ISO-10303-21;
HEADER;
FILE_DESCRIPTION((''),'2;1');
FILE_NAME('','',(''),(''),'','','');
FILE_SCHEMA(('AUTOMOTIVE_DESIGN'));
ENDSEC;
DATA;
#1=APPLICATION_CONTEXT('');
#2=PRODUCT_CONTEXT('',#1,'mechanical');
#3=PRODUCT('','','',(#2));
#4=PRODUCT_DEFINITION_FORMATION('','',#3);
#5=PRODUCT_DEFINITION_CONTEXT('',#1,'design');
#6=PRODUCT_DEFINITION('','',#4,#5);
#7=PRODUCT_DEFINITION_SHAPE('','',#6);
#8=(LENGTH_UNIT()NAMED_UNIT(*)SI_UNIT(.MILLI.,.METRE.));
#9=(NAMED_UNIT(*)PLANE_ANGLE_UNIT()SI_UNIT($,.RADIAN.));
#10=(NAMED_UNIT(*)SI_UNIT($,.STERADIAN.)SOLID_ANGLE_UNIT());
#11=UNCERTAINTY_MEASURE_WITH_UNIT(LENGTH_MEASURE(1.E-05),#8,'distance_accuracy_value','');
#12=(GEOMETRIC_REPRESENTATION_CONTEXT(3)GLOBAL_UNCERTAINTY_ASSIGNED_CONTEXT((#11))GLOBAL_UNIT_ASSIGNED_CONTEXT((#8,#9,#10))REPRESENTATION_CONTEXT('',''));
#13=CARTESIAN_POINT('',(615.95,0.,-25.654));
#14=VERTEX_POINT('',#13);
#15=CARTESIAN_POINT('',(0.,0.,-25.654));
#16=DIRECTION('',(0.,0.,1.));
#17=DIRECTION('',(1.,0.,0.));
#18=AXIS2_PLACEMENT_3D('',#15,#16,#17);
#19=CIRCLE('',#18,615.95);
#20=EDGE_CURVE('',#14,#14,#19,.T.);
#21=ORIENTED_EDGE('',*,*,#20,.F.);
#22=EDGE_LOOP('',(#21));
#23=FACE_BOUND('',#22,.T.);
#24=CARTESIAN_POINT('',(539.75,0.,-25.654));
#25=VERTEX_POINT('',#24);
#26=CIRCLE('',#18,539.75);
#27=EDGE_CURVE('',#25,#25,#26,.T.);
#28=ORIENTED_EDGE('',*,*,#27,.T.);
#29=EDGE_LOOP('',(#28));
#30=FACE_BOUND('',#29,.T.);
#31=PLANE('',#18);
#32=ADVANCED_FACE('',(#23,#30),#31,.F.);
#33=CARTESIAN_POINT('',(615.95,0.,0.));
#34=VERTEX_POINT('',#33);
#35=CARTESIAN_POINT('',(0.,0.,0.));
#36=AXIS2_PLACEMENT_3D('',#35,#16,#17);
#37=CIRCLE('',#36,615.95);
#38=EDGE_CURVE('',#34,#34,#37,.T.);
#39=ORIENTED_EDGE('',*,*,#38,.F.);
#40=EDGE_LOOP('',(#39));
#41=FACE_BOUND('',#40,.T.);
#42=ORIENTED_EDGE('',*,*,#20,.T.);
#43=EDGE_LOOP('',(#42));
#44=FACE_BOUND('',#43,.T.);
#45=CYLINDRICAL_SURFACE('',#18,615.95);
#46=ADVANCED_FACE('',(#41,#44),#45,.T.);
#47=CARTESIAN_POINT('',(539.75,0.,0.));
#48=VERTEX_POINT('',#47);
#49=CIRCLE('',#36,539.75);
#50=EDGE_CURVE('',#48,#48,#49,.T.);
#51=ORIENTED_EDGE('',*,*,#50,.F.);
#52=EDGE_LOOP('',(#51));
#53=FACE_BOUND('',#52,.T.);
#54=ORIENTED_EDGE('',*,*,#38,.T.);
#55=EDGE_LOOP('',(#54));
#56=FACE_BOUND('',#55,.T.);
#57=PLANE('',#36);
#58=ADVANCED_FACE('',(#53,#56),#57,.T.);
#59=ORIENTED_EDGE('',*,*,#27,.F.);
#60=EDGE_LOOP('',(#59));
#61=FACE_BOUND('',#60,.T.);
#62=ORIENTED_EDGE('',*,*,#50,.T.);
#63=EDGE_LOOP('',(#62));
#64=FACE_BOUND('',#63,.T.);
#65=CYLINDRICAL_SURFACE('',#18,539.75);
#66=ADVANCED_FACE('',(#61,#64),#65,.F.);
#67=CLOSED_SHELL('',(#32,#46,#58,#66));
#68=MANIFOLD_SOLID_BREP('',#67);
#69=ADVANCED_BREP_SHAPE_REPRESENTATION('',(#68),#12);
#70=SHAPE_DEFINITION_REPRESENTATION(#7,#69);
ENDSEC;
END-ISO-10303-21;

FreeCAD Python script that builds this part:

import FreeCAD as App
import Part
import Sketcher
Q = App.Units.Quantity

doc = App.newDocument("Part")
body = doc.addObject("PartDesign::Body", "Body")

sketch1 = doc.addObject("Sketcher::SketchObject", "Sketch")
body.addObject(sketch1)
sketch1.AttachmentSupport = (doc.XY_Plane, [""])
sketch1.MapMode = "FlatFace"
sketch1.addGeometry([
    Part.Circle(App.Vector(0, 0, 0), App.Vector(0, 0, 1), 616),
    Part.Circle(App.Vector(0, 0, 0), App.Vector(0, 0, 1), 540),
], False)
sketch1.addConstraint([
    Sketcher.Constraint("Coincident", 0, 3, -1, 1),
    Sketcher.Constraint("Coincident", 1, 3, -1, 1),
    Sketcher.Constraint("Diameter", 0, Q("48.5 in")),
    Sketcher.Constraint("Diameter", 1, Q("42.5 in")),
])
pad1 = doc.addObject("PartDesign::Pad", "Pad")
body.addObject(pad1)
pad1.Profile = sketch1
pad1.Length = Q("1.01 in")
pad1.Reversed = True

doc.recompute()
